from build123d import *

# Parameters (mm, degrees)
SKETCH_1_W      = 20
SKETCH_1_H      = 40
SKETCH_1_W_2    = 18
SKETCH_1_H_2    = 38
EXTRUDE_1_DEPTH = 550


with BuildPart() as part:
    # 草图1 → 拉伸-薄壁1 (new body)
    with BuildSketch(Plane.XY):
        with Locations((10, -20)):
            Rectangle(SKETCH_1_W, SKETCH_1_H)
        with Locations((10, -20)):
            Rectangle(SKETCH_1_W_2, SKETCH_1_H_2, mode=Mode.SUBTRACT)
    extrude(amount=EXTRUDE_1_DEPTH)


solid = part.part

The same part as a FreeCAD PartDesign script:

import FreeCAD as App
import Part
import Sketcher
Q = App.Units.Quantity

doc = App.newDocument("Part")
body = doc.addObject("PartDesign::Body", "Body")

sketch1 = body.newObject("Sketcher::SketchObject", "Sketch")
sketch1.AttachmentSupport = (doc.getObject("XY_Plane"), [""])
sketch1.MapMode = "FlatFace"
sketch1.addGeometry([
    Part.LineSegment(App.Vector(0, 0, 0), App.Vector(0, -40, 0)),
    Part.LineSegment(App.Vector(0, -40, 0), App.Vector(20, -40, 0)),
    Part.LineSegment(App.Vector(20, -40, 0), App.Vector(20, 0, 0)),
    Part.LineSegment(App.Vector(20, 0, 0), App.Vector(0, 0, 0)),
    Part.LineSegment(App.Vector(19, -39, 0), App.Vector(1, -39, 0)),
    Part.LineSegment(App.Vector(1, -39, 0), App.Vector(1, -1, 0)),
    Part.LineSegment(App.Vector(1, -1, 0), App.Vector(19, -1, 0)),
    Part.LineSegment(App.Vector(19, -1, 0), App.Vector(19, -39, 0)),
], False)
sketch1.addConstraint([
    Sketcher.Constraint("Coincident", 0, 2, 1, 1),
    Sketcher.Constraint("Coincident", 1, 2, 2, 1),
    Sketcher.Constraint("Coincident", 2, 2, 3, 1),
    Sketcher.Constraint("Coincident", 3, 2, 0, 1),
    Sketcher.Constraint("Coincident", 4, 2, 5, 1),
    Sketcher.Constraint("Coincident", 5, 2, 6, 1),
    Sketcher.Constraint("Coincident", 6, 2, 7, 1),
    Sketcher.Constraint("Coincident", 7, 2, 4, 1),
    Sketcher.Constraint("Vertical", 0),
    Sketcher.Constraint("Horizontal", 1),
    Sketcher.Constraint("Vertical", 2),
    Sketcher.Constraint("Horizontal", 3),
    Sketcher.Constraint("Horizontal", 4),
    Sketcher.Constraint("Vertical", 5),
    Sketcher.Constraint("Horizontal", 6),
    Sketcher.Constraint("Vertical", 7),
    Sketcher.Constraint("Coincident", 3, 2, -1, 1),
    Sketcher.Constraint("DistanceX", 1, 1, 1, 2, Q("20 mm")),
    Sketcher.Constraint("DistanceX", 4, 2, 4, 1, Q("18 mm")),
    Sketcher.Constraint("DistanceY", 0, 2, 0, 1, Q("40 mm")),
    Sketcher.Constraint("DistanceY", 5, 1, 5, 2, Q("38 mm")),
    Sketcher.Constraint("DistanceX", -1, 1, 4, 2, Q("1 mm")),
    Sketcher.Constraint("DistanceY", 4, 2, -1, 1, Q("39 mm")),
])
pad1 = body.newObject("PartDesign::Pad", "Pad")
pad1.Profile = sketch1
pad1.Length = 550

doc.recompute()
